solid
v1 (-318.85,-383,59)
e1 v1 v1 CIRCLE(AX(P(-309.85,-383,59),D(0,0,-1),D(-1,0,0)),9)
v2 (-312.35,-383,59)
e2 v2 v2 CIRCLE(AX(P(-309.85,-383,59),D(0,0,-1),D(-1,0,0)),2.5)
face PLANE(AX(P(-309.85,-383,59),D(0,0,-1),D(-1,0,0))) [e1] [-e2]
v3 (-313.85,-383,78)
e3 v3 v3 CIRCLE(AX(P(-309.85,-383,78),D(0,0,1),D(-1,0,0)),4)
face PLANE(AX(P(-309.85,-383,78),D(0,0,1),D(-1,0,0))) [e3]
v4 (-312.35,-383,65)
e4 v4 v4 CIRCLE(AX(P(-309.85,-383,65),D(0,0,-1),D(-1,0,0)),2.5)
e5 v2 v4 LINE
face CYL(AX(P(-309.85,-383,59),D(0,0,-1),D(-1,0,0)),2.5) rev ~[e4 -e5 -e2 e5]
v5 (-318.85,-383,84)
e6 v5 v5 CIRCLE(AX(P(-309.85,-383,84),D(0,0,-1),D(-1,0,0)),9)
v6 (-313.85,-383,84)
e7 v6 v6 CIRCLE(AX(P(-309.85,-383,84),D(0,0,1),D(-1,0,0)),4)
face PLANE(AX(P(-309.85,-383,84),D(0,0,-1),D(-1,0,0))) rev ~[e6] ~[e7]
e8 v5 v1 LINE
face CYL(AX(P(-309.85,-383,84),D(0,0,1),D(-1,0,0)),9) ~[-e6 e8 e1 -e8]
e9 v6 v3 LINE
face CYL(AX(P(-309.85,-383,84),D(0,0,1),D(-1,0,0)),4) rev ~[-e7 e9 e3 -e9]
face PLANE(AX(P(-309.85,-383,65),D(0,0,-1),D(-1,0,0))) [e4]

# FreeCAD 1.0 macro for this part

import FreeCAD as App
import Part
import Sketcher
Q = App.Units.Quantity

doc = App.newDocument("Part")
body = doc.addObject("PartDesign::Body", "Body")

# Sketch on XY plane
sketch1 = body.newObject("Sketcher::SketchObject", "Sketch")
sketch1.AttachmentSupport = (doc.getObject("XY_Plane"), [""])
sketch1.MapMode = "FlatFace"
sketch1.addGeometry(Part.Circle(App.Vector(0, 0, 0), App.Vector(0, 0, 1), 9), False)
sketch1.addConstraint(Sketcher.Constraint("Coincident", 0, 3, -1, 1))
sketch1.addConstraint(Sketcher.Constraint("Diameter", 0, Q("18 mm")))
pad1 = body.newObject("PartDesign::Pad", "Pad")
pad1.Profile = sketch1
pad1.Length = 25

# Sketch on XY plane
sketch2 = body.newObject("Sketcher::SketchObject", "Sketch001")
sketch2.AttachmentSupport = (doc.getObject("XY_Plane"), [""])
sketch2.MapMode = "FlatFace"
sketch2.AttachmentOffset = App.Placement(App.Vector(0, 0, 25), App.Rotation())
sketch2.addGeometry(Part.Circle(App.Vector(0, 0, 0), App.Vector(0, 0, 1), 2.5), False)
sketch2.addConstraint(Sketcher.Constraint("Coincident", 0, 3, -1, 1))
sketch2.addConstraint(Sketcher.Constraint("Diameter", 0, Q("5 mm")))
pocket1 = body.newObject("PartDesign::Pocket", "Pocket")
pocket1.Profile = sketch2
pocket1.Length = 6

# Sketch on XY plane
sketch3 = body.newObject("Sketcher::SketchObject", "Sketch002")
sketch3.AttachmentSupport = (doc.getObject("XY_Plane"), [""])
sketch3.MapMode = "FlatFace"
sketch3.addGeometry(Part.Circle(App.Vector(0, 0, 0), App.Vector(0, 0, 1), 4), False)
sketch3.addConstraint(Sketcher.Constraint("Coincident", 0, 3, -1, 1))
sketch3.addConstraint(Sketcher.Constraint("Diameter", 0, Q("8 mm")))
pocket2 = body.newObject("PartDesign::Pocket", "Pocket001")
pocket2.Profile = sketch3
pocket2.Length = 6
pocket2.Reversed = True
body2 = doc.addObject("PartDesign::Body", "Body001")
doc.recompute()

body.Placement = App.Placement(App.Vector(-310, -25, 82), App.Rotation(App.Vector(0, 1, 0), 180))
boolean = body2.newObject("PartDesign::Boolean", "Boolean")
boolean.Type = "Fuse"
boolean.addObjects([body])
body3 = doc.addObject("PartDesign::Body", "Body002")
doc.recompute()

body2.Placement = App.Placement(App.Vector(0.15, -358, 2), App.Rotation(App.Vector(0, 0, 1), 0))
boolean2 = body3.newObject("PartDesign::Boolean", "Boolean001")
boolean2.Type = "Fuse"
boolean2.addObjects([body2])

doc.recompute()
